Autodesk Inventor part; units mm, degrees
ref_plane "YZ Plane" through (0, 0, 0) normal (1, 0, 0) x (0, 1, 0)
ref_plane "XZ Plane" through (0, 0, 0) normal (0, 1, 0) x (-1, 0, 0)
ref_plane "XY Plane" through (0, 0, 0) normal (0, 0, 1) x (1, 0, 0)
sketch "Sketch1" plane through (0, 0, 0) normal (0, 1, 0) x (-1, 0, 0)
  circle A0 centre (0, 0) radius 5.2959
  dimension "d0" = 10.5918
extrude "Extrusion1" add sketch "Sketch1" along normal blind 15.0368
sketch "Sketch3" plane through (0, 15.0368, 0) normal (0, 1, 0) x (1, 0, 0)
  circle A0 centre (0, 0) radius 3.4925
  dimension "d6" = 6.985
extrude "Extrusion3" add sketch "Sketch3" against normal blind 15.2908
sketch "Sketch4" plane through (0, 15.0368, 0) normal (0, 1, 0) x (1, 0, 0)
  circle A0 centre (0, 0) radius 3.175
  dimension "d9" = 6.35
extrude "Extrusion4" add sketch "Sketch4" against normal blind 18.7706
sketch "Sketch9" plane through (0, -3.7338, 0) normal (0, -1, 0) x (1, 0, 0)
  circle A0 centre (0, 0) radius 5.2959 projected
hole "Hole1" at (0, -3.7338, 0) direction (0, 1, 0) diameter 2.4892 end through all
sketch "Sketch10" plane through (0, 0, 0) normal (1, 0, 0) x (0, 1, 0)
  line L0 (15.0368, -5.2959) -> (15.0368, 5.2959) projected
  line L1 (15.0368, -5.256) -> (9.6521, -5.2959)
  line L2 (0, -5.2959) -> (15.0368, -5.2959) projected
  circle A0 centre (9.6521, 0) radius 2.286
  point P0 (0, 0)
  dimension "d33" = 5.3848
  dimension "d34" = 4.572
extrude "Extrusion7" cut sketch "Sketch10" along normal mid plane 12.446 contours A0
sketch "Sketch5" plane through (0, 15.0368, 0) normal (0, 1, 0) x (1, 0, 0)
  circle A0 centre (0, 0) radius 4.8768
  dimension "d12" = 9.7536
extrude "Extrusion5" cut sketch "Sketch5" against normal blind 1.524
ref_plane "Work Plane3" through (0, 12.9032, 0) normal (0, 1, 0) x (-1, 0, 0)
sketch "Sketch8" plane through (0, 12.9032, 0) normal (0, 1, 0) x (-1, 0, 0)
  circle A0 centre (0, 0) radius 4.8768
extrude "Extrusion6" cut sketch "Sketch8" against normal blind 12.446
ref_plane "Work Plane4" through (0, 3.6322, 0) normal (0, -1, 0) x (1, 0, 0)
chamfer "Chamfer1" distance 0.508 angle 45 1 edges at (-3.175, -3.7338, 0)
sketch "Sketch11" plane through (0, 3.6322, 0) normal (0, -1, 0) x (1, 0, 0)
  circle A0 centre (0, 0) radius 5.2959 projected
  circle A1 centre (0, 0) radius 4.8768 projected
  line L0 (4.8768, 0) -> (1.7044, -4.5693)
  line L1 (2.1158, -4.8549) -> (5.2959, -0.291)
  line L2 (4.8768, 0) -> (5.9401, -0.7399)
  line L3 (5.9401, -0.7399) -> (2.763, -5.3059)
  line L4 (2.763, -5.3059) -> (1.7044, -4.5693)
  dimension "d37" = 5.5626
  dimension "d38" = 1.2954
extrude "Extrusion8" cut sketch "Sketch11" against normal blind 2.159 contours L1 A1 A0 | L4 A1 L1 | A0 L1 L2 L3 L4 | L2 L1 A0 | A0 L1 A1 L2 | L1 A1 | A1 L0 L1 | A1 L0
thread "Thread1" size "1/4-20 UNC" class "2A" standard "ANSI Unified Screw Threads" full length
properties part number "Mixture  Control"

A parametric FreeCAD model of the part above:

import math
import FreeCAD as App
import Part
import Sketcher
Q = App.Units.Quantity


def edges_at(feature, points):
    """Names of the edges that pass closest to the given points."""
    edges = feature.Shape.Edges
    near = lambda p: min(range(len(edges)), key=lambda i: edges[i].distToShape(Part.Vertex(*p))[0])
    return sorted({f"Edge{near(p) + 1}" for p in points})

doc = App.newDocument("Part")
body = doc.addObject("PartDesign::Body", "Body")

sketch1 = body.newObject("Sketcher::SketchObject", "Sketch")
sketch1.AttachmentSupport = (doc.getObject("XZ_Plane"), [""])
sketch1.MapMode = "FlatFace"
sketch1.addGeometry(Part.Circle(App.Vector(0, 0, 0), App.Vector(0, 0, 1), 5.2959), False)
sketch1.addConstraint(Sketcher.Constraint("Coincident", 0, 3, -1, 1))
sketch1.addConstraint(Sketcher.Constraint("Diameter", 0, Q("0.417 in")))
pad1 = body.newObject("PartDesign::Pad", "Pad")
pad1.Profile = sketch1
pad1.Length = Q("0.592 in")
pad1.Reversed = True

sketch2 = body.newObject("Sketcher::SketchObject", "Sketch001")
sketch2.AttachmentSupport = (doc.getObject("XZ_Plane"), [""])
sketch2.MapMode = "FlatFace"
sketch2.AttachmentOffset = App.Placement(App.Vector(0, 0, -0.592 * 25.4), App.Rotation())
sketch2.addGeometry(Part.Circle(App.Vector(0, 0, 0), App.Vector(0, 0, 1), 3.4925), False)
sketch2.addConstraint(Sketcher.Constraint("Coincident", 0, 3, -1, 1))
sketch2.addConstraint(Sketcher.Constraint("Diameter", 0, Q("0.275 in")))
pad2 = body.newObject("PartDesign::Pad", "Pad001")
pad2.Profile = sketch2
pad2.Length = Q("0.602 in")

sketch3 = body.newObject("Sketcher::SketchObject", "Sketch002")
sketch3.AttachmentSupport = (doc.getObject("XZ_Plane"), [""])
sketch3.MapMode = "FlatFace"
sketch3.AttachmentOffset = App.Placement(App.Vector(0, 0, -0.592 * 25.4), App.Rotation())
sketch3.addGeometry(Part.Circle(App.Vector(0, 0, 0), App.Vector(0, 0, 1), 3.175), False)
sketch3.addConstraint(Sketcher.Constraint("Coincident", 0, 3, -1, 1))
sketch3.addConstraint(Sketcher.Constraint("Diameter", 0, Q("0.25 in")))
pad3 = body.newObject("PartDesign::Pad", "Pad002")
pad3.Profile = sketch3
pad3.Length = Q("0.739 in")

sketch4 = body.newObject("Sketcher::SketchObject", "Sketch003")
sketch4.AttachmentSupport = (doc.getObject("XZ_Plane"), [""])
sketch4.MapMode = "FlatFace"
sketch4.AttachmentOffset = App.Placement(App.Vector(0, 0, 0.147 * 25.4), App.Rotation())
sketch4.addGeometry(Part.Circle(App.Vector(0, 0, 0), App.Vector(0, 0, 1), 1.2446), False)
sketch4.addConstraint(Sketcher.Constraint("Coincident", 0, 3, -1, 1))
sketch4.addConstraint(Sketcher.Constraint("Diameter", 0, Q("0.098 in")))
doc.recompute()
hole = body.newObject("PartDesign::Hole", "Hole")
hole.Profile = sketch4
hole.ThreadType = "None"
hole.Diameter = Q("0.098 in")
hole.DepthType = "ThroughAll"

sketch5 = body.newObject("Sketcher::SketchObject", "Sketch004")
sketch5.AttachmentSupport = (doc.getObject("YZ_Plane"), [""])
sketch5.MapMode = "FlatFace"
sketch5.addGeometry(Part.Circle(App.Vector(9.6521, 0, 0), App.Vector(0, 0, 1), 2.286), False)
sketch5.addConstraint(Sketcher.Constraint("PointOnObject", 0, 3, -1))
sketch5.addConstraint(Sketcher.Constraint("Diameter", 0, Q("0.18 in")))
sketch5.addConstraint(Sketcher.Constraint("DistanceX", -1, 1, 0, 3, Q("0.38 in")))
pocket1 = body.newObject("PartDesign::Pocket", "Pocket")
pocket1.Profile = sketch5
pocket1.Length = Q("0.49 in")
pocket1.Midplane = True

sketch6 = body.newObject("Sketcher::SketchObject", "Sketch005")
sketch6.AttachmentSupport = (doc.getObject("XZ_Plane"), [""])
sketch6.MapMode = "FlatFace"
sketch6.AttachmentOffset = App.Placement(App.Vector(0, 0, -0.592 * 25.4), App.Rotation())
sketch6.addGeometry(Part.Circle(App.Vector(0, 0, 0), App.Vector(0, 0, 1), 4.8768), False)
sketch6.addConstraint(Sketcher.Constraint("Coincident", 0, 3, -1, 1))
sketch6.addConstraint(Sketcher.Constraint("Diameter", 0, Q("0.384 in")))
pocket2 = body.newObject("PartDesign::Pocket", "Pocket001")
pocket2.Profile = sketch6
pocket2.Length = Q("0.06 in")
pocket2.Reversed = True

sketch7 = body.newObject("Sketcher::SketchObject", "Sketch006")
sketch7.AttachmentSupport = (doc.getObject("XZ_Plane"), [""])
sketch7.MapMode = "FlatFace"
sketch7.AttachmentOffset = App.Placement(App.Vector(0, 0, -0.508 * 25.4), App.Rotation())
sketch7.addGeometry(Part.Circle(App.Vector(0, 0, 0), App.Vector(0, 0, 1), 4.8768), False)
sketch7.addConstraint(Sketcher.Constraint("Coincident", 0, 3, -1, 1))
sketch7.addConstraint(Sketcher.Constraint("Diameter", 0, Q("0.384 in")))
pocket3 = body.newObject("PartDesign::Pocket", "Pocket002")
pocket3.Profile = sketch7
pocket3.Length = Q("0.49 in")
pocket3.Reversed = True
doc.recompute()

chamfer = body.newObject("PartDesign::Chamfer", "Chamfer")
chamfer.Base = (pocket3, edges_at(pocket3, [(-3.175, -3.734, 0)]))
chamfer.Size = Q("0.02 in")

sketch8 = body.newObject("Sketcher::SketchObject", "Sketch007")
sketch8.AttachmentSupport = (doc.getObject("XZ_Plane"), [""])
sketch8.MapMode = "FlatFace"
sketch8.AttachmentOffset = App.Placement(App.Vector(0, 0, -0.143 * 25.4), App.Rotation())
sketch8.addGeometry(Part.LineSegment(App.Vector(1.7044, -4.5693, 0), App.Vector(2.763, -5.3059, 0)), False)
sketch8.addGeometry(Part.LineSegment(App.Vector(2.763, -5.3059, 0), App.Vector(5.9401, -0.7399, 0)), False)
sketch8.addGeometry(Part.LineSegment(App.Vector(5.9401, -0.7399, 0), App.Vector(4.8768, 0, 0)), False)
sketch8.addGeometry(Part.ArcOfCircle(Part.Circle(App.Vector(0, 0, 0), App.Vector(0, 0, 1), 4.8768), math.radians(0), math.radians(290.456078)), False)
sketch8.addConstraint(Sketcher.Constraint("Coincident", 0, 2, 1, 1))
sketch8.addConstraint(Sketcher.Constraint("Coincident", 1, 2, 2, 1))
sketch8.addConstraint(Sketcher.Constraint("Coincident", 2, 2, 3, 1))
sketch8.addConstraint(Sketcher.Constraint("Coincident", 3, 2, 0, 1))
sketch8.addConstraint(Sketcher.Constraint("Coincident", 3, 3, -1, 1))
sketch8.addConstraint(Sketcher.Constraint("PointOnObject", 2, 2, -1))
sketch8.addConstraint(Sketcher.Constraint("Perpendicular", 0, 1))
sketch8.addConstraint(Sketcher.Constraint("Perpendicular", 1, 2))
sketch8.addConstraint(Sketcher.Constraint("Distance", 1, Q("0.219 in")))
sketch8.addConstraint(Sketcher.Constraint("Distance", 2, Q("0.051 in")))
sketch8.addConstraint(Sketcher.Constraint("Radius", 3, Q("0.192 in")))
sketch8.addConstraint(Sketcher.Constraint("Angle", 0, Q("-34.8311 deg")))
pocket4 = body.newObject("PartDesign::Pocket", "Pocket003")
pocket4.Profile = sketch8
pocket4.Length = Q("0.085 in")

doc.recompute()
